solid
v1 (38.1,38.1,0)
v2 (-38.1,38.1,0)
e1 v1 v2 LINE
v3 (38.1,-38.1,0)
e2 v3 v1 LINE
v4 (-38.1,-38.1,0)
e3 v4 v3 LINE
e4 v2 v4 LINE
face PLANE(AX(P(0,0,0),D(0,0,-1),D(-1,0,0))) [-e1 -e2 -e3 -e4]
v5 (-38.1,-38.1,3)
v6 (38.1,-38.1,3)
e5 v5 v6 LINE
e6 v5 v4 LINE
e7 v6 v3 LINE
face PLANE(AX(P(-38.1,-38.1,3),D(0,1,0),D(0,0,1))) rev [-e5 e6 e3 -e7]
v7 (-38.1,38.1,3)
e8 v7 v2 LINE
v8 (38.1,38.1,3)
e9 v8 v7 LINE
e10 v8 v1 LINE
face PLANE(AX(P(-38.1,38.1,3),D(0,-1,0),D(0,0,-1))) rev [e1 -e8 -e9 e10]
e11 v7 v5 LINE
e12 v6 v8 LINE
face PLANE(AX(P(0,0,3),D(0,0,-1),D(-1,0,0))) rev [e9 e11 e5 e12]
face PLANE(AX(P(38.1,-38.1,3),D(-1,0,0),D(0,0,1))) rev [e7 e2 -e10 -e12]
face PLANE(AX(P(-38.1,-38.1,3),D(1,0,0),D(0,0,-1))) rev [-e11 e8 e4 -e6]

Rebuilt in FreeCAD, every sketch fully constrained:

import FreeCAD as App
import Part
import Sketcher

V = App.Vector


def add_polygon(sketch, points):
    """Adds a closed chain of lines whose ends are joined by coincident constraints."""
    first, n = sketch.GeometryCount, len(points)
    for a, b in zip(points, points[1:] + points[:1]):
        sketch.addGeometry(Part.LineSegment(App.Vector(*a, 0), App.Vector(*b, 0)), False)
    for i in range(n):
        sketch.addConstraint(Sketcher.Constraint("Coincident", first + i, 2, first + (i + 1) % n, 1))

doc = App.newDocument("Part")
body = doc.addObject("PartDesign::Body", "Body")

# Sketch on XY plane
sketch1 = doc.addObject("Sketcher::SketchObject", "Sketch")
body.addObject(sketch1)
sketch1.AttachmentSupport = (doc.XY_Plane, [""])
sketch1.MapMode = "FlatFace"
add_polygon(sketch1, [(-38.1, 38.1), (-38.1, -38.1), (38.1, -38.1), (38.1, 38.1)])  # lines 0-3
sketch1.addConstraint([
    Sketcher.Constraint("Vertical", 0),
    Sketcher.Constraint("Horizontal", 1),
    Sketcher.Constraint("Vertical", 2),
    Sketcher.Constraint("Horizontal", 3),
    Sketcher.Constraint("Symmetric", 0, 2, 2, 2, -1, 1),
    Sketcher.Constraint("Equal", 3, 0),
    Sketcher.Constraint("DistanceX", 1, 1, 1, 2, 76.2),
])
pad1 = doc.addObject("PartDesign::Pad", "Pad")
body.addObject(pad1)
pad1.Profile = sketch1
pad1.Length = 3

doc.recompute()
